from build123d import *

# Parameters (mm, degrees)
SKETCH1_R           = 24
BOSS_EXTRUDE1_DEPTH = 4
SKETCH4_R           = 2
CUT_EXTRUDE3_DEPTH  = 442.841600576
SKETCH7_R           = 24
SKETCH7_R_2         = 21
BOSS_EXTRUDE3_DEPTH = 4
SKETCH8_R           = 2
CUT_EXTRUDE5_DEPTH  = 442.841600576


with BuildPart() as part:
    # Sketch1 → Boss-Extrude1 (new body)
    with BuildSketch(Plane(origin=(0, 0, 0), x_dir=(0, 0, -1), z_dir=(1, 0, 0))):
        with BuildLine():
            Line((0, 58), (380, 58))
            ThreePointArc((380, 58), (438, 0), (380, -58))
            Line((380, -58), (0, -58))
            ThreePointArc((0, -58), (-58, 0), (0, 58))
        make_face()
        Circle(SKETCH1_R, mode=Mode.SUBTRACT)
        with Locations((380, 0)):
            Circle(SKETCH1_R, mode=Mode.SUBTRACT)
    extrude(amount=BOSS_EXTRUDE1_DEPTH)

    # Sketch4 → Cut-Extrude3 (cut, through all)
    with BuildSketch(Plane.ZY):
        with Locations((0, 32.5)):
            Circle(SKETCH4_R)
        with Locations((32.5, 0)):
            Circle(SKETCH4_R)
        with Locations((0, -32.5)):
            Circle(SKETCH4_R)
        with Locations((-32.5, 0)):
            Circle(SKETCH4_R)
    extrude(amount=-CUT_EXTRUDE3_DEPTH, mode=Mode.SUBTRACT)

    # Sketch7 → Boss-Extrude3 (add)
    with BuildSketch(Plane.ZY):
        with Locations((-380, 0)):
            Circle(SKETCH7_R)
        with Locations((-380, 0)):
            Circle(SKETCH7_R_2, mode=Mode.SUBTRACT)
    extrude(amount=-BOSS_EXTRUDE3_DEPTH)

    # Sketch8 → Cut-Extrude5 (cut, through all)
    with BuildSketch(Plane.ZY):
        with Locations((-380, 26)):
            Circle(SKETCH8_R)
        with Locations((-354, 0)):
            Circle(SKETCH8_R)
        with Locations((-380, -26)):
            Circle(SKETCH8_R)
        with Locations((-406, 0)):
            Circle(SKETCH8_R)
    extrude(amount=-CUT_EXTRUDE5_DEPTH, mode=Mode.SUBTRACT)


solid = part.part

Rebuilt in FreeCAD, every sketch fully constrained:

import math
import FreeCAD as App
import Part
import Sketcher
from FreeCAD import Vector

doc = App.newDocument("Part")
body = doc.addObject("PartDesign::Body", "Body")

# Sketch on YZ plane
sketch1 = body.newObject("Sketcher::SketchObject", "Sketch")
sketch1.AttachmentSupport = (doc.getObject("YZ_Plane"), [""])
sketch1.MapMode = "FlatFace"
sketch1.addGeometry(Part.LineSegment(Vector(58, -380, 0), Vector(58, 0, 0)), False)
sketch1.addGeometry(Part.ArcOfCircle(Part.Circle(Vector(0, 0, 0), Vector(0, 0, 1), 58), math.radians(0), math.radians(180)), False)
sketch1.addGeometry(Part.LineSegment(Vector(-58, 0, 0), Vector(-58, -380, 0)), False)
sketch1.addGeometry(Part.ArcOfCircle(Part.Circle(Vector(0, -380, 0), Vector(0, 0, 1), 58), math.radians(180), math.radians(360)), False)
sketch1.addGeometry(Part.Circle(Vector(0, -380, 0), Vector(0, 0, 1), 24), False)
sketch1.addGeometry(Part.Circle(Vector(0, 0, 0), Vector(0, 0, 1), 24), False)
sketch1.addConstraint(Sketcher.Constraint("Tangent", 0, 2, 1, 1))
sketch1.addConstraint(Sketcher.Constraint("Tangent", 1, 2, 2, 1))
sketch1.addConstraint(Sketcher.Constraint("Tangent", 2, 2, 3, 1))
sketch1.addConstraint(Sketcher.Constraint("Tangent", 3, 2, 0, 1))
sketch1.addConstraint(Sketcher.Constraint("Vertical", 0))
sketch1.addConstraint(Sketcher.Constraint("Vertical", 2))
sketch1.addConstraint(Sketcher.Constraint("Coincident", 1, 3, -1, 1))
sketch1.addConstraint(Sketcher.Constraint("Coincident", 5, 3, -1, 1))
sketch1.addConstraint(Sketcher.Constraint("Coincident", 4, 3, 3, 3))
sketch1.addConstraint(Sketcher.Constraint("Equal", 4, 5))
sketch1.addConstraint(Sketcher.Constraint("Diameter", 4, 48.0))
sketch1.addConstraint(Sketcher.Constraint("Radius", 1, 58.0))
sketch1.addConstraint(Sketcher.Constraint("DistanceY", 0, 1, 0, 2, 380.0))
pad1 = body.newObject("PartDesign::Pad", "Pad")
pad1.Profile = sketch1
pad1.Length = 4

# Sketch on YZ plane
sketch2 = body.newObject("Sketcher::SketchObject", "Sketch001")
sketch2.AttachmentSupport = (doc.getObject("YZ_Plane"), [""])
sketch2.MapMode = "FlatFace"
sketch2.addGeometry(Part.Circle(Vector(32.5, 0, 0), Vector(0, 0, 1), 2), False)
sketch2.addGeometry(Part.Circle(Vector(0, 32.5, 0), Vector(0, 0, 1), 2), False)
sketch2.addGeometry(Part.Circle(Vector(-32.5, 0, 0), Vector(0, 0, 1), 2), False)
sketch2.addGeometry(Part.Circle(Vector(0, -32.5, 0), Vector(0, 0, 1), 2), False)
sketch2.addConstraint(Sketcher.Constraint("Equal", 0, 1))
sketch2.addConstraint(Sketcher.Constraint("Equal", 1, 2))
sketch2.addConstraint(Sketcher.Constraint("Equal", 2, 3))
sketch2.addConstraint(Sketcher.Constraint("Symmetric", 0, 3, 2, 3, -1, 1))
sketch2.addConstraint(Sketcher.Constraint("Symmetric", 1, 3, 3, 3, -1, 1))
sketch2.addConstraint(Sketcher.Constraint("PointOnObject", 0, 3, -1))
sketch2.addConstraint(Sketcher.Constraint("PointOnObject", 1, 3, -2))
sketch2.addConstraint(Sketcher.Constraint("Diameter", 0, 4.0))
sketch2.addConstraint(Sketcher.Constraint("DistanceX", 2, 3, 0, 3, 65.0))
sketch2.addConstraint(Sketcher.Constraint("DistanceY", 3, 3, 1, 3, 65.0))
pocket1 = body.newObject("PartDesign::Pocket", "Pocket")
pocket1.Profile = sketch2
pocket1.Type = "ThroughAll"
pocket1.Reversed = True

# Sketch on YZ plane
sketch3 = body.newObject("Sketcher::SketchObject", "Sketch002")
sketch3.AttachmentSupport = (doc.getObject("YZ_Plane"), [""])
sketch3.MapMode = "FlatFace"
sketch3.addGeometry(Part.Circle(Vector(0, -380, 0), Vector(0, 0, 1), 24), False)
sketch3.addGeometry(Part.Circle(Vector(0, -380, 0), Vector(0, 0, 1), 21), False)
sketch3.addConstraint(Sketcher.Constraint("Coincident", 1, 3, 0, 3))
sketch3.addConstraint(Sketcher.Constraint("PointOnObject", 0, 3, -2))
sketch3.addConstraint(Sketcher.Constraint("Diameter", 0, 48.0))
sketch3.addConstraint(Sketcher.Constraint("Diameter", 1, 42.0))
sketch3.addConstraint(Sketcher.Constraint("DistanceY", 0, 3, -1, 1, 380.0))
pad2 = body.newObject("PartDesign::Pad", "Pad001")
pad2.Profile = sketch3
pad2.Length = 4

# Sketch on YZ plane
sketch4 = body.newObject("Sketcher::SketchObject", "Sketch003")
sketch4.AttachmentSupport = (doc.getObject("YZ_Plane"), [""])
sketch4.MapMode = "FlatFace"
sketch4.addGeometry(Part.Circle(Vector(26, -380, 0), Vector(0, 0, 1), 2), False)
sketch4.addGeometry(Part.Circle(Vector(0, -354, 0), Vector(0, 0, 1), 2), False)
sketch4.addGeometry(Part.Circle(Vector(-26, -380, 0), Vector(0, 0, 1), 2), False)
sketch4.addGeometry(Part.Circle(Vector(0, -406, 0), Vector(0, 0, 1), 2), False)
sketch4.addConstraint(Sketcher.Constraint("Equal", 0, 1))
sketch4.addConstraint(Sketcher.Constraint("Equal", 1, 2))
sketch4.addConstraint(Sketcher.Constraint("Equal", 2, 3))
sketch4.addConstraint(Sketcher.Constraint("Symmetric", 0, 3, 2, 3, -2))
sketch4.addConstraint(Sketcher.Constraint("PointOnObject", 1, 3, -2))
sketch4.addConstraint(Sketcher.Constraint("PointOnObject", 3, 3, -2))
sketch4.addConstraint(Sketcher.Constraint("Diameter", 0, 4.0))
sketch4.addConstraint(Sketcher.Constraint("DistanceX", -1, 1, 0, 3, 26.0))
sketch4.addConstraint(Sketcher.Constraint("DistanceY", 0, 3, -1, 1, 380.0))
sketch4.addConstraint(Sketcher.Constraint("DistanceY", 1, 3, -1, 1, 354.0))
sketch4.addConstraint(Sketcher.Constraint("DistanceY", 3, 3, -1, 1, 406.0))
pocket2 = body.newObject("PartDesign::Pocket", "Pocket001")
pocket2.Profile = sketch4
pocket2.Type = "ThroughAll"
pocket2.Reversed = True

doc.recompute()
